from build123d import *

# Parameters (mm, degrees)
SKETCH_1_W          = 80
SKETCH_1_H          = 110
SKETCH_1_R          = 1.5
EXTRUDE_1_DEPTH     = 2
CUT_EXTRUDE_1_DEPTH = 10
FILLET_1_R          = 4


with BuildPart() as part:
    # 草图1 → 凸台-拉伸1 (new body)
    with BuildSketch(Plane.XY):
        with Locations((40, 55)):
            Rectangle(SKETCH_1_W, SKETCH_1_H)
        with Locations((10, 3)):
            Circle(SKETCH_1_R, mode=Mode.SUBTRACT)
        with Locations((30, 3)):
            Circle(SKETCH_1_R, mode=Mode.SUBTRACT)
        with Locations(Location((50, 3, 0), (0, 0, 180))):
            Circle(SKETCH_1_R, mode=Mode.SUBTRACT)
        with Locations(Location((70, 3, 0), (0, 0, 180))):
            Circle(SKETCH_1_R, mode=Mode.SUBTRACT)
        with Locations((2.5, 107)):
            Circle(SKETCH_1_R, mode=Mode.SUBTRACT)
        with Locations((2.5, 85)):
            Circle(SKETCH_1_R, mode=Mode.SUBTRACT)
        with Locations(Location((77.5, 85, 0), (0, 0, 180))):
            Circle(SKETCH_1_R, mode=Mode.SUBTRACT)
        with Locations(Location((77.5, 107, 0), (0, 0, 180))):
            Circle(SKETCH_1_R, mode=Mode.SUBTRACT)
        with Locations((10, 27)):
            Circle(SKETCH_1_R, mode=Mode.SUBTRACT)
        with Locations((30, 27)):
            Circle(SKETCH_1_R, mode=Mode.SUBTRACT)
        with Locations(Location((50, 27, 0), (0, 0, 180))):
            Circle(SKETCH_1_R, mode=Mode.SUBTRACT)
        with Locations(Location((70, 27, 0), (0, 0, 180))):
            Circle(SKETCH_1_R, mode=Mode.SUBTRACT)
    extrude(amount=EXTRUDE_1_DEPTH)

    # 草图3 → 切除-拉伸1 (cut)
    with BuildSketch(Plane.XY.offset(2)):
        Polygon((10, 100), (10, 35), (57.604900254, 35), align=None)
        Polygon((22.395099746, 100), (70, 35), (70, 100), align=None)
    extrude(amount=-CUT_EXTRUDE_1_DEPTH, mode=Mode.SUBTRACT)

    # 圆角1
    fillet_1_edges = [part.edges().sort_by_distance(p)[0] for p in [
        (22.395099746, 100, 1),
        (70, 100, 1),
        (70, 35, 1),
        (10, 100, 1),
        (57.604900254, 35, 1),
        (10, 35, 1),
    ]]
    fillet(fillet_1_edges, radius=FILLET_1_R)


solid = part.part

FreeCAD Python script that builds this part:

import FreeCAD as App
import Part
import Sketcher
from FreeCAD import Vector
Q = App.Units.Quantity


def edges_at(feature, points):
    """Names of the edges that pass closest to the given points."""
    edges = feature.Shape.Edges
    near = lambda p: min(range(len(edges)), key=lambda i: edges[i].distToShape(Part.Vertex(*p))[0])
    return sorted({f"Edge{near(p) + 1}" for p in points})

doc = App.newDocument("Part")
body = doc.addObject("PartDesign::Body", "Body")

# Sketch on XY plane
sketch1 = body.newObject("Sketcher::SketchObject", "Sketch")
sketch1.AttachmentSupport = (doc.getObject("XY_Plane"), [""])
sketch1.MapMode = "FlatFace"
sketch1.addGeometry(Part.LineSegment(Vector(0, 110, 0), Vector(0, 0, 0)), False)
sketch1.addGeometry(Part.LineSegment(Vector(0, 0, 0), Vector(80, 0, 0)), False)
sketch1.addGeometry(Part.LineSegment(Vector(80, 0, 0), Vector(80, 110, 0)), False)
sketch1.addGeometry(Part.LineSegment(Vector(80, 110, 0), Vector(0, 110, 0)), False)
sketch1.addGeometry(Part.Circle(Vector(10, 3, 0), Vector(0, 0, 1), 1.5), False)
sketch1.addGeometry(Part.Circle(Vector(10, 27, 0), Vector(0, 0, 1), 1.5), False)
sketch1.addGeometry(Part.Circle(Vector(30, 3, 0), Vector(0, 0, 1), 1.5), False)
sketch1.addGeometry(Part.Circle(Vector(30, 27, 0), Vector(0, 0, 1), 1.5), False)
sketch1.addGeometry(Part.Circle(Vector(50, 3, 0), Vector(0, 0, 1), 1.5), False)
sketch1.addGeometry(Part.Circle(Vector(50, 27, 0), Vector(0, 0, 1), 1.5), False)
sketch1.addGeometry(Part.Circle(Vector(70, 3, 0), Vector(0, 0, 1), 1.5), False)
sketch1.addGeometry(Part.Circle(Vector(70, 27, 0), Vector(0, 0, 1), 1.5), False)
sketch1.addGeometry(Part.Circle(Vector(2.5, 85, 0), Vector(0, 0, 1), 1.5), False)
sketch1.addGeometry(Part.Circle(Vector(2.5, 107, 0), Vector(0, 0, 1), 1.5), False)
sketch1.addGeometry(Part.Circle(Vector(77.5, 85, 0), Vector(0, 0, 1), 1.5), False)
sketch1.addGeometry(Part.Circle(Vector(77.5, 107, 0), Vector(0, 0, 1), 1.5), False)
sketch1.addConstraint(Sketcher.Constraint("Coincident", 0, 2, 1, 1))
sketch1.addConstraint(Sketcher.Constraint("Coincident", 1, 2, 2, 1))
sketch1.addConstraint(Sketcher.Constraint("Coincident", 2, 2, 3, 1))
sketch1.addConstraint(Sketcher.Constraint("Coincident", 3, 2, 0, 1))
sketch1.addConstraint(Sketcher.Constraint("Vertical", 0))
sketch1.addConstraint(Sketcher.Constraint("Horizontal", 1))
sketch1.addConstraint(Sketcher.Constraint("Vertical", 2))
sketch1.addConstraint(Sketcher.Constraint("Horizontal", 3))
sketch1.addConstraint(Sketcher.Constraint("Coincident", 0, 2, -1, 1))
sketch1.addConstraint(Sketcher.Constraint("Equal", 4, 5))
sketch1.addConstraint(Sketcher.Constraint("Equal", 5, 6))
sketch1.addConstraint(Sketcher.Constraint("Equal", 6, 7))
sketch1.addConstraint(Sketcher.Constraint("Equal", 7, 8))
sketch1.addConstraint(Sketcher.Constraint("Equal", 8, 9))
sketch1.addConstraint(Sketcher.Constraint("Equal", 9, 10))
sketch1.addConstraint(Sketcher.Constraint("Equal", 10, 11))
sketch1.addConstraint(Sketcher.Constraint("Equal", 11, 12))
sketch1.addConstraint(Sketcher.Constraint("Equal", 12, 13))
sketch1.addConstraint(Sketcher.Constraint("Equal", 13, 14))
sketch1.addConstraint(Sketcher.Constraint("Equal", 14, 15))
sketch1.addConstraint(Sketcher.Constraint("Horizontal", 4, 3, 6, 3))
sketch1.addConstraint(Sketcher.Constraint("Horizontal", 5, 3, 7, 3))
sketch1.addConstraint(Sketcher.Constraint("Horizontal", 6, 3, 8, 3))
sketch1.addConstraint(Sketcher.Constraint("Horizontal", 7, 3, 9, 3))
sketch1.addConstraint(Sketcher.Constraint("Horizontal", 8, 3, 10, 3))
sketch1.addConstraint(Sketcher.Constraint("Horizontal", 9, 3, 11, 3))
sketch1.addConstraint(Sketcher.Constraint("Horizontal", 12, 3, 14, 3))
sketch1.addConstraint(Sketcher.Constraint("Horizontal", 13, 3, 15, 3))
sketch1.addConstraint(Sketcher.Constraint("Vertical", 4, 3, 5, 3))
sketch1.addConstraint(Sketcher.Constraint("Vertical", 6, 3, 7, 3))
sketch1.addConstraint(Sketcher.Constraint("Vertical", 8, 3, 9, 3))
sketch1.addConstraint(Sketcher.Constraint("Vertical", 10, 3, 11, 3))
sketch1.addConstraint(Sketcher.Constraint("Vertical", 12, 3, 13, 3))
sketch1.addConstraint(Sketcher.Constraint("Vertical", 14, 3, 15, 3))
sketch1.addConstraint(Sketcher.Constraint("Diameter", 4, Q("3 mm")))
sketch1.addConstraint(Sketcher.Constraint("DistanceX", 1, 1, 1, 2, Q("80 mm")))
sketch1.addConstraint(Sketcher.Constraint("DistanceY", 0, 2, 0, 1, Q("110 mm")))
sketch1.addConstraint(Sketcher.Constraint("DistanceX", -1, 1, 4, 3, Q("10 mm")))
sketch1.addConstraint(Sketcher.Constraint("DistanceY", -1, 1, 4, 3, Q("3 mm")))
sketch1.addConstraint(Sketcher.Constraint("DistanceY", -1, 1, 5, 3, Q("27 mm")))
sketch1.addConstraint(Sketcher.Constraint("DistanceX", -1, 1, 6, 3, Q("30 mm")))
sketch1.addConstraint(Sketcher.Constraint("DistanceX", -1, 1, 8, 3, Q("50 mm")))
sketch1.addConstraint(Sketcher.Constraint("DistanceX", -1, 1, 10, 3, Q("70 mm")))
sketch1.addConstraint(Sketcher.Constraint("DistanceY", -1, 1, 12, 3, Q("85 mm")))
sketch1.addConstraint(Sketcher.Constraint("DistanceY", -1, 1, 13, 3, Q("107 mm")))
sketch1.addConstraint(Sketcher.Constraint("DistanceX", 12, 3, 14, 3, Q("75 mm")))
sketch1.addConstraint(Sketcher.Constraint("DistanceX", -1, 1, 12, 3, Q("2.5 mm")))
pad1 = body.newObject("PartDesign::Pad", "Pad")
pad1.Profile = sketch1
pad1.Length = 2

# Sketch on XY plane
sketch2 = body.newObject("Sketcher::SketchObject", "Sketch001")
sketch2.AttachmentSupport = (doc.getObject("XY_Plane"), [""])
sketch2.MapMode = "FlatFace"
sketch2.AttachmentOffset = App.Placement(Vector(0, 0, 2), App.Rotation())
sketch2.addGeometry(Part.LineSegment(Vector(10, 100, 0), Vector(10, 35, 0)), False)
sketch2.addGeometry(Part.LineSegment(Vector(10, 35, 0), Vector(58, 35, 0)), False)
sketch2.addGeometry(Part.LineSegment(Vector(58, 35, 0), Vector(10, 100, 0)), False)
sketch2.addGeometry(Part.LineSegment(Vector(22, 100, 0), Vector(70, 35, 0)), False)
sketch2.addGeometry(Part.LineSegment(Vector(70, 35, 0), Vector(70, 100, 0)), False)
sketch2.addGeometry(Part.LineSegment(Vector(70, 100, 0), Vector(22, 100, 0)), False)
sketch2.addConstraint(Sketcher.Constraint("Coincident", 0, 2, 1, 1))
sketch2.addConstraint(Sketcher.Constraint("Coincident", 1, 2, 2, 1))
sketch2.addConstraint(Sketcher.Constraint("Coincident", 2, 2, 0, 1))
sketch2.addConstraint(Sketcher.Constraint("Coincident", 3, 2, 4, 1))
sketch2.addConstraint(Sketcher.Constraint("Coincident", 4, 2, 5, 1))
sketch2.addConstraint(Sketcher.Constraint("Coincident", 5, 2, 3, 1))
sketch2.addConstraint(Sketcher.Constraint("Vertical", 0))
sketch2.addConstraint(Sketcher.Constraint("Horizontal", 1))
sketch2.addConstraint(Sketcher.Constraint("Vertical", 4))
sketch2.addConstraint(Sketcher.Constraint("Horizontal", 5))
sketch2.addConstraint(Sketcher.Constraint("Parallel", 2, 3))
sketch2.addConstraint(Sketcher.Constraint("Horizontal", 1, 2, 3, 2))
sketch2.addConstraint(Sketcher.Constraint("Horizontal", 2, 2, 4, 2))
sketch2.addConstraint(Sketcher.Constraint("DistanceY", 0, 2, 0, 1, Q("65 mm")))
sketch2.addConstraint(Sketcher.Constraint("DistanceX", -1, 1, 0, 2, Q("10 mm")))
sketch2.addConstraint(Sketcher.Constraint("DistanceY", -1, 1, 0, 2, Q("35 mm")))
sketch2.addConstraint(Sketcher.Constraint("DistanceX", -1, 1, 3, 2, Q("70 mm")))
sketch2.addConstraint(Sketcher.Constraint("DistanceX", 1, 1, 1, 2, Q("47.6049 mm")))
pocket1 = body.newObject("PartDesign::Pocket", "Pocket")
pocket1.Profile = sketch2
pocket1.Length = 10
doc.recompute()

fillet = body.newObject("PartDesign::Fillet", "Fillet")
fillet.Base = (pocket1, edges_at(pocket1, [
    (22.395, 100, 1),
    (70, 100, 1),
    (70, 35, 1),
    (10, 100, 1),
    (57.605, 35, 1),
    (10, 35, 1),
]))
fillet.Radius = 4

doc.recompute()
